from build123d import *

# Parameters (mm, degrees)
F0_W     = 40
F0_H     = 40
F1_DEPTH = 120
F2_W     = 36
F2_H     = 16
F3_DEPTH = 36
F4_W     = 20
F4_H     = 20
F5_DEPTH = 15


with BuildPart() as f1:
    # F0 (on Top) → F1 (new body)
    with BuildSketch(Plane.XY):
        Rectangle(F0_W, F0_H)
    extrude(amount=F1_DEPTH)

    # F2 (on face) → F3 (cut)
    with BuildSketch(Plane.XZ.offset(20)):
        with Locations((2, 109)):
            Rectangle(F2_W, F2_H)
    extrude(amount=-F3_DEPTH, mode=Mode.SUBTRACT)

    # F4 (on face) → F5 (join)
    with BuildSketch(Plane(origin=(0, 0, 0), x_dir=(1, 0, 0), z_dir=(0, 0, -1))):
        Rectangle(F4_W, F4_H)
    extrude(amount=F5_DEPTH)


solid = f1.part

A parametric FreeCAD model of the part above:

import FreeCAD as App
import Part
import Sketcher

doc = App.newDocument("Part")
body = doc.addObject("PartDesign::Body", "Body")

# Sketch on XY plane
sketch1 = body.newObject("Sketcher::SketchObject", "Sketch")
sketch1.AttachmentSupport = (doc.getObject("XY_Plane"), [""])
sketch1.MapMode = "FlatFace"
sketch1.addGeometry(Part.LineSegment(App.Vector(-20, 20, 0), App.Vector(-20, -20, 0)), False)
sketch1.addGeometry(Part.LineSegment(App.Vector(-20, -20, 0), App.Vector(20, -20, 0)), False)
sketch1.addGeometry(Part.LineSegment(App.Vector(20, -20, 0), App.Vector(20, 20, 0)), False)
sketch1.addGeometry(Part.LineSegment(App.Vector(20, 20, 0), App.Vector(-20, 20, 0)), False)
sketch1.addConstraint(Sketcher.Constraint("Coincident", 0, 2, 1, 1))
sketch1.addConstraint(Sketcher.Constraint("Coincident", 1, 2, 2, 1))
sketch1.addConstraint(Sketcher.Constraint("Coincident", 2, 2, 3, 1))
sketch1.addConstraint(Sketcher.Constraint("Coincident", 3, 2, 0, 1))
sketch1.addConstraint(Sketcher.Constraint("Vertical", 0))
sketch1.addConstraint(Sketcher.Constraint("Horizontal", 1))
sketch1.addConstraint(Sketcher.Constraint("Vertical", 2))
sketch1.addConstraint(Sketcher.Constraint("Horizontal", 3))
sketch1.addConstraint(Sketcher.Constraint("Symmetric", 0, 2, 2, 2, -1, 1))
sketch1.addConstraint(Sketcher.Constraint("Equal", 3, 0))
sketch1.addConstraint(Sketcher.Constraint("DistanceX", 1, 1, 1, 2, 40.0))
pad1 = body.newObject("PartDesign::Pad", "Pad")
pad1.Profile = sketch1
pad1.Length = 120

# Sketch on XZ plane
sketch2 = body.newObject("Sketcher::SketchObject", "Sketch001")
sketch2.AttachmentSupport = (doc.getObject("XZ_Plane"), [""])
sketch2.MapMode = "FlatFace"
sketch2.AttachmentOffset = App.Placement(App.Vector(0, 0, 20), App.Rotation())
sketch2.addGeometry(Part.LineSegment(App.Vector(-16, 117, 0), App.Vector(-16, 101, 0)), False)
sketch2.addGeometry(Part.LineSegment(App.Vector(-16, 101, 0), App.Vector(20, 101, 0)), False)
sketch2.addGeometry(Part.LineSegment(App.Vector(20, 101, 0), App.Vector(20, 117, 0)), False)
sketch2.addGeometry(Part.LineSegment(App.Vector(20, 117, 0), App.Vector(-16, 117, 0)), False)
sketch2.addConstraint(Sketcher.Constraint("Coincident", 0, 2, 1, 1))
sketch2.addConstraint(Sketcher.Constraint("Coincident", 1, 2, 2, 1))
sketch2.addConstraint(Sketcher.Constraint("Coincident", 2, 2, 3, 1))
sketch2.addConstraint(Sketcher.Constraint("Coincident", 3, 2, 0, 1))
sketch2.addConstraint(Sketcher.Constraint("Vertical", 0))
sketch2.addConstraint(Sketcher.Constraint("Horizontal", 1))
sketch2.addConstraint(Sketcher.Constraint("Vertical", 2))
sketch2.addConstraint(Sketcher.Constraint("Horizontal", 3))
sketch2.addConstraint(Sketcher.Constraint("DistanceX", 1, 1, 1, 2, 36.0))
sketch2.addConstraint(Sketcher.Constraint("DistanceY", 0, 2, 0, 1, 16.0))
sketch2.addConstraint(Sketcher.Constraint("DistanceX", 0, 2, -1, 1, 16.0))
sketch2.addConstraint(Sketcher.Constraint("DistanceY", -1, 1, 0, 2, 101.0))
pocket1 = body.newObject("PartDesign::Pocket", "Pocket")
pocket1.Profile = sketch2
pocket1.Length = 36

# Sketch on XY plane
sketch3 = body.newObject("Sketcher::SketchObject", "Sketch002")
sketch3.AttachmentSupport = (doc.getObject("XY_Plane"), [""])
sketch3.MapMode = "FlatFace"
sketch3.addGeometry(Part.LineSegment(App.Vector(-10, -10, 0), App.Vector(-10, 10, 0)), False)
sketch3.addGeometry(Part.LineSegment(App.Vector(-10, 10, 0), App.Vector(10, 10, 0)), False)
sketch3.addGeometry(Part.LineSegment(App.Vector(10, 10, 0), App.Vector(10, -10, 0)), False)
sketch3.addGeometry(Part.LineSegment(App.Vector(10, -10, 0), App.Vector(-10, -10, 0)), False)
sketch3.addConstraint(Sketcher.Constraint("Coincident", 0, 2, 1, 1))
sketch3.addConstraint(Sketcher.Constraint("Coincident", 1, 2, 2, 1))
sketch3.addConstraint(Sketcher.Constraint("Coincident", 2, 2, 3, 1))
sketch3.addConstraint(Sketcher.Constraint("Coincident", 3, 2, 0, 1))
sketch3.addConstraint(Sketcher.Constraint("Vertical", 0))
sketch3.addConstraint(Sketcher.Constraint("Horizontal", 1))
sketch3.addConstraint(Sketcher.Constraint("Vertical", 2))
sketch3.addConstraint(Sketcher.Constraint("Horizontal", 3))
sketch3.addConstraint(Sketcher.Constraint("Symmetric", 0, 2, 2, 2, -1, 1))
sketch3.addConstraint(Sketcher.Constraint("Equal", 3, 0))
sketch3.addConstraint(Sketcher.Constraint("DistanceX", 1, 1, 1, 2, 20.0))
pad2 = body.newObject("PartDesign::Pad", "Pad001")
pad2.Profile = sketch3
pad2.Length = 15
pad2.Reversed = True

doc.recompute()
